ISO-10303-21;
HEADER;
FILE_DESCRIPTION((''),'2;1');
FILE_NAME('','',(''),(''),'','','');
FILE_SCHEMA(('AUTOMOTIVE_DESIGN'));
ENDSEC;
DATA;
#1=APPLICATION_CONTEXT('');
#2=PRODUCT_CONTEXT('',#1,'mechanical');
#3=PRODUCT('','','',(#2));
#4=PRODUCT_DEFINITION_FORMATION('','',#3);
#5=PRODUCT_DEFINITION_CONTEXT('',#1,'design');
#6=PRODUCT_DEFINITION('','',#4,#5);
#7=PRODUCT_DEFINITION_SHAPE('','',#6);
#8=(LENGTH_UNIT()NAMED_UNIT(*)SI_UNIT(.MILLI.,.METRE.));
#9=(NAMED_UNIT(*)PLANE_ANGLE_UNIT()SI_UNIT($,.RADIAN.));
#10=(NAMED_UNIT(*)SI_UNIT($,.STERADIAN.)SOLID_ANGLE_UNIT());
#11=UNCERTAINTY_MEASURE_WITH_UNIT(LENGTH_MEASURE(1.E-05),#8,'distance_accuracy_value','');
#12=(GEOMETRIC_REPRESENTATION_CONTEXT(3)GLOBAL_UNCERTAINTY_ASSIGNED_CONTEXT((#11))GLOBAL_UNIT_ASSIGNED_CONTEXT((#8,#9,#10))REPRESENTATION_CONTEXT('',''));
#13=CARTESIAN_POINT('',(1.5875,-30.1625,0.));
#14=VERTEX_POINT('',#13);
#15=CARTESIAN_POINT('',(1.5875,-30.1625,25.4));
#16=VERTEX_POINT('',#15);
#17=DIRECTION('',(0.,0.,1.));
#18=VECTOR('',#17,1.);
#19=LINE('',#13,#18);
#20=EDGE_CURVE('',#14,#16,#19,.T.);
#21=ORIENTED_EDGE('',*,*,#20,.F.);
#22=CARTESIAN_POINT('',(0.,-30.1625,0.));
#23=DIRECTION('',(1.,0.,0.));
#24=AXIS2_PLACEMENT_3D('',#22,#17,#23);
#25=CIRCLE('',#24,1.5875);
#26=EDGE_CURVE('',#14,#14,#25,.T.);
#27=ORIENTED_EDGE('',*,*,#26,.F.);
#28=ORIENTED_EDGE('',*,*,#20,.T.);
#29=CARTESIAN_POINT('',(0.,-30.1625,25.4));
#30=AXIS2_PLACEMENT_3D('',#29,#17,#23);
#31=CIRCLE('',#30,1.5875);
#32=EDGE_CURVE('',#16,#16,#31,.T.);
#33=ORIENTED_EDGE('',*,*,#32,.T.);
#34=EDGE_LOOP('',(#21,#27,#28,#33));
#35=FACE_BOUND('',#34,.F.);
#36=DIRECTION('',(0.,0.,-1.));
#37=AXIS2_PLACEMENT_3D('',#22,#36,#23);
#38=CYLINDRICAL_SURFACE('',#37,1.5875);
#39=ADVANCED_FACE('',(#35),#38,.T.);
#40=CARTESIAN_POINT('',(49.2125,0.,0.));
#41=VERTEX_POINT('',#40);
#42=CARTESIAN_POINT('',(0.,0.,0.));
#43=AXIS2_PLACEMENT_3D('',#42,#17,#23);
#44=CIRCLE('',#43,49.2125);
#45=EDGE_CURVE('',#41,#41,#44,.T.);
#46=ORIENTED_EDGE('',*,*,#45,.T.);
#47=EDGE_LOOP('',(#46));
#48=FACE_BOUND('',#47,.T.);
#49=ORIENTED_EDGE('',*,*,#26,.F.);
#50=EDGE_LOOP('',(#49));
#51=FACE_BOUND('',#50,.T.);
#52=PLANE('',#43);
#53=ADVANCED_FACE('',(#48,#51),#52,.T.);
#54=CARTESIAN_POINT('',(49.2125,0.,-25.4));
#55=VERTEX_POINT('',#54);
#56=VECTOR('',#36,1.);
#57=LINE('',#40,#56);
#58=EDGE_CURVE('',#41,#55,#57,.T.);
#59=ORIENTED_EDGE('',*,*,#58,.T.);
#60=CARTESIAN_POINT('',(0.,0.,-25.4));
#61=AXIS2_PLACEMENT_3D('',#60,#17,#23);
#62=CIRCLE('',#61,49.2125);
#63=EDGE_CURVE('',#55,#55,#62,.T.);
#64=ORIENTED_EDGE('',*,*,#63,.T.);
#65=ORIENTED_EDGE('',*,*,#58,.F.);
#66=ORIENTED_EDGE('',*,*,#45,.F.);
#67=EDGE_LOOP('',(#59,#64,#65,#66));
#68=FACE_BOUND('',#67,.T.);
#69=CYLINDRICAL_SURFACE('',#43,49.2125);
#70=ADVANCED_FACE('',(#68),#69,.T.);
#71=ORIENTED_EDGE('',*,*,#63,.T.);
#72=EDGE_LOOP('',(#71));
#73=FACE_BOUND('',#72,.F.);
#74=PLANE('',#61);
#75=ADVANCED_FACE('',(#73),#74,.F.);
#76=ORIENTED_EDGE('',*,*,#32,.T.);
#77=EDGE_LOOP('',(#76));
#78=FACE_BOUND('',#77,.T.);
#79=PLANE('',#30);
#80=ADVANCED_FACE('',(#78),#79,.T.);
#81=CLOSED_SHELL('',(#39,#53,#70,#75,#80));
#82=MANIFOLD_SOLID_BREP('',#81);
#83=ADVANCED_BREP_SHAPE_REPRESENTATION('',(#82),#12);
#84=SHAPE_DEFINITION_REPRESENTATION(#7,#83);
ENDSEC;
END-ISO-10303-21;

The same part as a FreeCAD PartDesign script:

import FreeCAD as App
import Part
import Sketcher
from FreeCAD import Vector
Q = App.Units.Quantity

doc = App.newDocument("Part")
body = doc.addObject("PartDesign::Body", "Body")

sketch1 = doc.addObject("Sketcher::SketchObject", "Sketch")
body.addObject(sketch1)
sketch1.AttachmentSupport = (doc.XY_Plane, [""])
sketch1.MapMode = "FlatFace"
sketch1.addGeometry(Part.Circle(Vector(0, 0, 0), Vector(0, 0, 1), 49), False)
sketch1.addConstraint([
    Sketcher.Constraint("Coincident", 0, 3, -1, 1),
    Sketcher.Constraint("Diameter", 0, Q("3.875 in")),
])
pad1 = doc.addObject("PartDesign::Pad", "Pad")
body.addObject(pad1)
pad1.Profile = sketch1
pad1.Length = Q("1 in")
pad1.Reversed = True

sketch2 = doc.addObject("Sketcher::SketchObject", "Sketch001")
body.addObject(sketch2)
sketch2.AttachmentSupport = (doc.XY_Plane, [""])
sketch2.MapMode = "FlatFace"
sketch2.addGeometry(Part.Circle(Vector(0, -30.2, 0), Vector(0, 0, 1), 1.6), False)
sketch2.addConstraint([
    Sketcher.Constraint("PointOnObject", 0, 3, -2),
    Sketcher.Constraint("Diameter", 0, Q("0.125 in")),
    Sketcher.Constraint("DistanceY", 0, 3, -1, 1, Q("1.1875 in")),
])
pad2 = doc.addObject("PartDesign::Pad", "Pad001")
body.addObject(pad2)
pad2.Profile = sketch2
pad2.Length = Q("1 in")

doc.recompute()
